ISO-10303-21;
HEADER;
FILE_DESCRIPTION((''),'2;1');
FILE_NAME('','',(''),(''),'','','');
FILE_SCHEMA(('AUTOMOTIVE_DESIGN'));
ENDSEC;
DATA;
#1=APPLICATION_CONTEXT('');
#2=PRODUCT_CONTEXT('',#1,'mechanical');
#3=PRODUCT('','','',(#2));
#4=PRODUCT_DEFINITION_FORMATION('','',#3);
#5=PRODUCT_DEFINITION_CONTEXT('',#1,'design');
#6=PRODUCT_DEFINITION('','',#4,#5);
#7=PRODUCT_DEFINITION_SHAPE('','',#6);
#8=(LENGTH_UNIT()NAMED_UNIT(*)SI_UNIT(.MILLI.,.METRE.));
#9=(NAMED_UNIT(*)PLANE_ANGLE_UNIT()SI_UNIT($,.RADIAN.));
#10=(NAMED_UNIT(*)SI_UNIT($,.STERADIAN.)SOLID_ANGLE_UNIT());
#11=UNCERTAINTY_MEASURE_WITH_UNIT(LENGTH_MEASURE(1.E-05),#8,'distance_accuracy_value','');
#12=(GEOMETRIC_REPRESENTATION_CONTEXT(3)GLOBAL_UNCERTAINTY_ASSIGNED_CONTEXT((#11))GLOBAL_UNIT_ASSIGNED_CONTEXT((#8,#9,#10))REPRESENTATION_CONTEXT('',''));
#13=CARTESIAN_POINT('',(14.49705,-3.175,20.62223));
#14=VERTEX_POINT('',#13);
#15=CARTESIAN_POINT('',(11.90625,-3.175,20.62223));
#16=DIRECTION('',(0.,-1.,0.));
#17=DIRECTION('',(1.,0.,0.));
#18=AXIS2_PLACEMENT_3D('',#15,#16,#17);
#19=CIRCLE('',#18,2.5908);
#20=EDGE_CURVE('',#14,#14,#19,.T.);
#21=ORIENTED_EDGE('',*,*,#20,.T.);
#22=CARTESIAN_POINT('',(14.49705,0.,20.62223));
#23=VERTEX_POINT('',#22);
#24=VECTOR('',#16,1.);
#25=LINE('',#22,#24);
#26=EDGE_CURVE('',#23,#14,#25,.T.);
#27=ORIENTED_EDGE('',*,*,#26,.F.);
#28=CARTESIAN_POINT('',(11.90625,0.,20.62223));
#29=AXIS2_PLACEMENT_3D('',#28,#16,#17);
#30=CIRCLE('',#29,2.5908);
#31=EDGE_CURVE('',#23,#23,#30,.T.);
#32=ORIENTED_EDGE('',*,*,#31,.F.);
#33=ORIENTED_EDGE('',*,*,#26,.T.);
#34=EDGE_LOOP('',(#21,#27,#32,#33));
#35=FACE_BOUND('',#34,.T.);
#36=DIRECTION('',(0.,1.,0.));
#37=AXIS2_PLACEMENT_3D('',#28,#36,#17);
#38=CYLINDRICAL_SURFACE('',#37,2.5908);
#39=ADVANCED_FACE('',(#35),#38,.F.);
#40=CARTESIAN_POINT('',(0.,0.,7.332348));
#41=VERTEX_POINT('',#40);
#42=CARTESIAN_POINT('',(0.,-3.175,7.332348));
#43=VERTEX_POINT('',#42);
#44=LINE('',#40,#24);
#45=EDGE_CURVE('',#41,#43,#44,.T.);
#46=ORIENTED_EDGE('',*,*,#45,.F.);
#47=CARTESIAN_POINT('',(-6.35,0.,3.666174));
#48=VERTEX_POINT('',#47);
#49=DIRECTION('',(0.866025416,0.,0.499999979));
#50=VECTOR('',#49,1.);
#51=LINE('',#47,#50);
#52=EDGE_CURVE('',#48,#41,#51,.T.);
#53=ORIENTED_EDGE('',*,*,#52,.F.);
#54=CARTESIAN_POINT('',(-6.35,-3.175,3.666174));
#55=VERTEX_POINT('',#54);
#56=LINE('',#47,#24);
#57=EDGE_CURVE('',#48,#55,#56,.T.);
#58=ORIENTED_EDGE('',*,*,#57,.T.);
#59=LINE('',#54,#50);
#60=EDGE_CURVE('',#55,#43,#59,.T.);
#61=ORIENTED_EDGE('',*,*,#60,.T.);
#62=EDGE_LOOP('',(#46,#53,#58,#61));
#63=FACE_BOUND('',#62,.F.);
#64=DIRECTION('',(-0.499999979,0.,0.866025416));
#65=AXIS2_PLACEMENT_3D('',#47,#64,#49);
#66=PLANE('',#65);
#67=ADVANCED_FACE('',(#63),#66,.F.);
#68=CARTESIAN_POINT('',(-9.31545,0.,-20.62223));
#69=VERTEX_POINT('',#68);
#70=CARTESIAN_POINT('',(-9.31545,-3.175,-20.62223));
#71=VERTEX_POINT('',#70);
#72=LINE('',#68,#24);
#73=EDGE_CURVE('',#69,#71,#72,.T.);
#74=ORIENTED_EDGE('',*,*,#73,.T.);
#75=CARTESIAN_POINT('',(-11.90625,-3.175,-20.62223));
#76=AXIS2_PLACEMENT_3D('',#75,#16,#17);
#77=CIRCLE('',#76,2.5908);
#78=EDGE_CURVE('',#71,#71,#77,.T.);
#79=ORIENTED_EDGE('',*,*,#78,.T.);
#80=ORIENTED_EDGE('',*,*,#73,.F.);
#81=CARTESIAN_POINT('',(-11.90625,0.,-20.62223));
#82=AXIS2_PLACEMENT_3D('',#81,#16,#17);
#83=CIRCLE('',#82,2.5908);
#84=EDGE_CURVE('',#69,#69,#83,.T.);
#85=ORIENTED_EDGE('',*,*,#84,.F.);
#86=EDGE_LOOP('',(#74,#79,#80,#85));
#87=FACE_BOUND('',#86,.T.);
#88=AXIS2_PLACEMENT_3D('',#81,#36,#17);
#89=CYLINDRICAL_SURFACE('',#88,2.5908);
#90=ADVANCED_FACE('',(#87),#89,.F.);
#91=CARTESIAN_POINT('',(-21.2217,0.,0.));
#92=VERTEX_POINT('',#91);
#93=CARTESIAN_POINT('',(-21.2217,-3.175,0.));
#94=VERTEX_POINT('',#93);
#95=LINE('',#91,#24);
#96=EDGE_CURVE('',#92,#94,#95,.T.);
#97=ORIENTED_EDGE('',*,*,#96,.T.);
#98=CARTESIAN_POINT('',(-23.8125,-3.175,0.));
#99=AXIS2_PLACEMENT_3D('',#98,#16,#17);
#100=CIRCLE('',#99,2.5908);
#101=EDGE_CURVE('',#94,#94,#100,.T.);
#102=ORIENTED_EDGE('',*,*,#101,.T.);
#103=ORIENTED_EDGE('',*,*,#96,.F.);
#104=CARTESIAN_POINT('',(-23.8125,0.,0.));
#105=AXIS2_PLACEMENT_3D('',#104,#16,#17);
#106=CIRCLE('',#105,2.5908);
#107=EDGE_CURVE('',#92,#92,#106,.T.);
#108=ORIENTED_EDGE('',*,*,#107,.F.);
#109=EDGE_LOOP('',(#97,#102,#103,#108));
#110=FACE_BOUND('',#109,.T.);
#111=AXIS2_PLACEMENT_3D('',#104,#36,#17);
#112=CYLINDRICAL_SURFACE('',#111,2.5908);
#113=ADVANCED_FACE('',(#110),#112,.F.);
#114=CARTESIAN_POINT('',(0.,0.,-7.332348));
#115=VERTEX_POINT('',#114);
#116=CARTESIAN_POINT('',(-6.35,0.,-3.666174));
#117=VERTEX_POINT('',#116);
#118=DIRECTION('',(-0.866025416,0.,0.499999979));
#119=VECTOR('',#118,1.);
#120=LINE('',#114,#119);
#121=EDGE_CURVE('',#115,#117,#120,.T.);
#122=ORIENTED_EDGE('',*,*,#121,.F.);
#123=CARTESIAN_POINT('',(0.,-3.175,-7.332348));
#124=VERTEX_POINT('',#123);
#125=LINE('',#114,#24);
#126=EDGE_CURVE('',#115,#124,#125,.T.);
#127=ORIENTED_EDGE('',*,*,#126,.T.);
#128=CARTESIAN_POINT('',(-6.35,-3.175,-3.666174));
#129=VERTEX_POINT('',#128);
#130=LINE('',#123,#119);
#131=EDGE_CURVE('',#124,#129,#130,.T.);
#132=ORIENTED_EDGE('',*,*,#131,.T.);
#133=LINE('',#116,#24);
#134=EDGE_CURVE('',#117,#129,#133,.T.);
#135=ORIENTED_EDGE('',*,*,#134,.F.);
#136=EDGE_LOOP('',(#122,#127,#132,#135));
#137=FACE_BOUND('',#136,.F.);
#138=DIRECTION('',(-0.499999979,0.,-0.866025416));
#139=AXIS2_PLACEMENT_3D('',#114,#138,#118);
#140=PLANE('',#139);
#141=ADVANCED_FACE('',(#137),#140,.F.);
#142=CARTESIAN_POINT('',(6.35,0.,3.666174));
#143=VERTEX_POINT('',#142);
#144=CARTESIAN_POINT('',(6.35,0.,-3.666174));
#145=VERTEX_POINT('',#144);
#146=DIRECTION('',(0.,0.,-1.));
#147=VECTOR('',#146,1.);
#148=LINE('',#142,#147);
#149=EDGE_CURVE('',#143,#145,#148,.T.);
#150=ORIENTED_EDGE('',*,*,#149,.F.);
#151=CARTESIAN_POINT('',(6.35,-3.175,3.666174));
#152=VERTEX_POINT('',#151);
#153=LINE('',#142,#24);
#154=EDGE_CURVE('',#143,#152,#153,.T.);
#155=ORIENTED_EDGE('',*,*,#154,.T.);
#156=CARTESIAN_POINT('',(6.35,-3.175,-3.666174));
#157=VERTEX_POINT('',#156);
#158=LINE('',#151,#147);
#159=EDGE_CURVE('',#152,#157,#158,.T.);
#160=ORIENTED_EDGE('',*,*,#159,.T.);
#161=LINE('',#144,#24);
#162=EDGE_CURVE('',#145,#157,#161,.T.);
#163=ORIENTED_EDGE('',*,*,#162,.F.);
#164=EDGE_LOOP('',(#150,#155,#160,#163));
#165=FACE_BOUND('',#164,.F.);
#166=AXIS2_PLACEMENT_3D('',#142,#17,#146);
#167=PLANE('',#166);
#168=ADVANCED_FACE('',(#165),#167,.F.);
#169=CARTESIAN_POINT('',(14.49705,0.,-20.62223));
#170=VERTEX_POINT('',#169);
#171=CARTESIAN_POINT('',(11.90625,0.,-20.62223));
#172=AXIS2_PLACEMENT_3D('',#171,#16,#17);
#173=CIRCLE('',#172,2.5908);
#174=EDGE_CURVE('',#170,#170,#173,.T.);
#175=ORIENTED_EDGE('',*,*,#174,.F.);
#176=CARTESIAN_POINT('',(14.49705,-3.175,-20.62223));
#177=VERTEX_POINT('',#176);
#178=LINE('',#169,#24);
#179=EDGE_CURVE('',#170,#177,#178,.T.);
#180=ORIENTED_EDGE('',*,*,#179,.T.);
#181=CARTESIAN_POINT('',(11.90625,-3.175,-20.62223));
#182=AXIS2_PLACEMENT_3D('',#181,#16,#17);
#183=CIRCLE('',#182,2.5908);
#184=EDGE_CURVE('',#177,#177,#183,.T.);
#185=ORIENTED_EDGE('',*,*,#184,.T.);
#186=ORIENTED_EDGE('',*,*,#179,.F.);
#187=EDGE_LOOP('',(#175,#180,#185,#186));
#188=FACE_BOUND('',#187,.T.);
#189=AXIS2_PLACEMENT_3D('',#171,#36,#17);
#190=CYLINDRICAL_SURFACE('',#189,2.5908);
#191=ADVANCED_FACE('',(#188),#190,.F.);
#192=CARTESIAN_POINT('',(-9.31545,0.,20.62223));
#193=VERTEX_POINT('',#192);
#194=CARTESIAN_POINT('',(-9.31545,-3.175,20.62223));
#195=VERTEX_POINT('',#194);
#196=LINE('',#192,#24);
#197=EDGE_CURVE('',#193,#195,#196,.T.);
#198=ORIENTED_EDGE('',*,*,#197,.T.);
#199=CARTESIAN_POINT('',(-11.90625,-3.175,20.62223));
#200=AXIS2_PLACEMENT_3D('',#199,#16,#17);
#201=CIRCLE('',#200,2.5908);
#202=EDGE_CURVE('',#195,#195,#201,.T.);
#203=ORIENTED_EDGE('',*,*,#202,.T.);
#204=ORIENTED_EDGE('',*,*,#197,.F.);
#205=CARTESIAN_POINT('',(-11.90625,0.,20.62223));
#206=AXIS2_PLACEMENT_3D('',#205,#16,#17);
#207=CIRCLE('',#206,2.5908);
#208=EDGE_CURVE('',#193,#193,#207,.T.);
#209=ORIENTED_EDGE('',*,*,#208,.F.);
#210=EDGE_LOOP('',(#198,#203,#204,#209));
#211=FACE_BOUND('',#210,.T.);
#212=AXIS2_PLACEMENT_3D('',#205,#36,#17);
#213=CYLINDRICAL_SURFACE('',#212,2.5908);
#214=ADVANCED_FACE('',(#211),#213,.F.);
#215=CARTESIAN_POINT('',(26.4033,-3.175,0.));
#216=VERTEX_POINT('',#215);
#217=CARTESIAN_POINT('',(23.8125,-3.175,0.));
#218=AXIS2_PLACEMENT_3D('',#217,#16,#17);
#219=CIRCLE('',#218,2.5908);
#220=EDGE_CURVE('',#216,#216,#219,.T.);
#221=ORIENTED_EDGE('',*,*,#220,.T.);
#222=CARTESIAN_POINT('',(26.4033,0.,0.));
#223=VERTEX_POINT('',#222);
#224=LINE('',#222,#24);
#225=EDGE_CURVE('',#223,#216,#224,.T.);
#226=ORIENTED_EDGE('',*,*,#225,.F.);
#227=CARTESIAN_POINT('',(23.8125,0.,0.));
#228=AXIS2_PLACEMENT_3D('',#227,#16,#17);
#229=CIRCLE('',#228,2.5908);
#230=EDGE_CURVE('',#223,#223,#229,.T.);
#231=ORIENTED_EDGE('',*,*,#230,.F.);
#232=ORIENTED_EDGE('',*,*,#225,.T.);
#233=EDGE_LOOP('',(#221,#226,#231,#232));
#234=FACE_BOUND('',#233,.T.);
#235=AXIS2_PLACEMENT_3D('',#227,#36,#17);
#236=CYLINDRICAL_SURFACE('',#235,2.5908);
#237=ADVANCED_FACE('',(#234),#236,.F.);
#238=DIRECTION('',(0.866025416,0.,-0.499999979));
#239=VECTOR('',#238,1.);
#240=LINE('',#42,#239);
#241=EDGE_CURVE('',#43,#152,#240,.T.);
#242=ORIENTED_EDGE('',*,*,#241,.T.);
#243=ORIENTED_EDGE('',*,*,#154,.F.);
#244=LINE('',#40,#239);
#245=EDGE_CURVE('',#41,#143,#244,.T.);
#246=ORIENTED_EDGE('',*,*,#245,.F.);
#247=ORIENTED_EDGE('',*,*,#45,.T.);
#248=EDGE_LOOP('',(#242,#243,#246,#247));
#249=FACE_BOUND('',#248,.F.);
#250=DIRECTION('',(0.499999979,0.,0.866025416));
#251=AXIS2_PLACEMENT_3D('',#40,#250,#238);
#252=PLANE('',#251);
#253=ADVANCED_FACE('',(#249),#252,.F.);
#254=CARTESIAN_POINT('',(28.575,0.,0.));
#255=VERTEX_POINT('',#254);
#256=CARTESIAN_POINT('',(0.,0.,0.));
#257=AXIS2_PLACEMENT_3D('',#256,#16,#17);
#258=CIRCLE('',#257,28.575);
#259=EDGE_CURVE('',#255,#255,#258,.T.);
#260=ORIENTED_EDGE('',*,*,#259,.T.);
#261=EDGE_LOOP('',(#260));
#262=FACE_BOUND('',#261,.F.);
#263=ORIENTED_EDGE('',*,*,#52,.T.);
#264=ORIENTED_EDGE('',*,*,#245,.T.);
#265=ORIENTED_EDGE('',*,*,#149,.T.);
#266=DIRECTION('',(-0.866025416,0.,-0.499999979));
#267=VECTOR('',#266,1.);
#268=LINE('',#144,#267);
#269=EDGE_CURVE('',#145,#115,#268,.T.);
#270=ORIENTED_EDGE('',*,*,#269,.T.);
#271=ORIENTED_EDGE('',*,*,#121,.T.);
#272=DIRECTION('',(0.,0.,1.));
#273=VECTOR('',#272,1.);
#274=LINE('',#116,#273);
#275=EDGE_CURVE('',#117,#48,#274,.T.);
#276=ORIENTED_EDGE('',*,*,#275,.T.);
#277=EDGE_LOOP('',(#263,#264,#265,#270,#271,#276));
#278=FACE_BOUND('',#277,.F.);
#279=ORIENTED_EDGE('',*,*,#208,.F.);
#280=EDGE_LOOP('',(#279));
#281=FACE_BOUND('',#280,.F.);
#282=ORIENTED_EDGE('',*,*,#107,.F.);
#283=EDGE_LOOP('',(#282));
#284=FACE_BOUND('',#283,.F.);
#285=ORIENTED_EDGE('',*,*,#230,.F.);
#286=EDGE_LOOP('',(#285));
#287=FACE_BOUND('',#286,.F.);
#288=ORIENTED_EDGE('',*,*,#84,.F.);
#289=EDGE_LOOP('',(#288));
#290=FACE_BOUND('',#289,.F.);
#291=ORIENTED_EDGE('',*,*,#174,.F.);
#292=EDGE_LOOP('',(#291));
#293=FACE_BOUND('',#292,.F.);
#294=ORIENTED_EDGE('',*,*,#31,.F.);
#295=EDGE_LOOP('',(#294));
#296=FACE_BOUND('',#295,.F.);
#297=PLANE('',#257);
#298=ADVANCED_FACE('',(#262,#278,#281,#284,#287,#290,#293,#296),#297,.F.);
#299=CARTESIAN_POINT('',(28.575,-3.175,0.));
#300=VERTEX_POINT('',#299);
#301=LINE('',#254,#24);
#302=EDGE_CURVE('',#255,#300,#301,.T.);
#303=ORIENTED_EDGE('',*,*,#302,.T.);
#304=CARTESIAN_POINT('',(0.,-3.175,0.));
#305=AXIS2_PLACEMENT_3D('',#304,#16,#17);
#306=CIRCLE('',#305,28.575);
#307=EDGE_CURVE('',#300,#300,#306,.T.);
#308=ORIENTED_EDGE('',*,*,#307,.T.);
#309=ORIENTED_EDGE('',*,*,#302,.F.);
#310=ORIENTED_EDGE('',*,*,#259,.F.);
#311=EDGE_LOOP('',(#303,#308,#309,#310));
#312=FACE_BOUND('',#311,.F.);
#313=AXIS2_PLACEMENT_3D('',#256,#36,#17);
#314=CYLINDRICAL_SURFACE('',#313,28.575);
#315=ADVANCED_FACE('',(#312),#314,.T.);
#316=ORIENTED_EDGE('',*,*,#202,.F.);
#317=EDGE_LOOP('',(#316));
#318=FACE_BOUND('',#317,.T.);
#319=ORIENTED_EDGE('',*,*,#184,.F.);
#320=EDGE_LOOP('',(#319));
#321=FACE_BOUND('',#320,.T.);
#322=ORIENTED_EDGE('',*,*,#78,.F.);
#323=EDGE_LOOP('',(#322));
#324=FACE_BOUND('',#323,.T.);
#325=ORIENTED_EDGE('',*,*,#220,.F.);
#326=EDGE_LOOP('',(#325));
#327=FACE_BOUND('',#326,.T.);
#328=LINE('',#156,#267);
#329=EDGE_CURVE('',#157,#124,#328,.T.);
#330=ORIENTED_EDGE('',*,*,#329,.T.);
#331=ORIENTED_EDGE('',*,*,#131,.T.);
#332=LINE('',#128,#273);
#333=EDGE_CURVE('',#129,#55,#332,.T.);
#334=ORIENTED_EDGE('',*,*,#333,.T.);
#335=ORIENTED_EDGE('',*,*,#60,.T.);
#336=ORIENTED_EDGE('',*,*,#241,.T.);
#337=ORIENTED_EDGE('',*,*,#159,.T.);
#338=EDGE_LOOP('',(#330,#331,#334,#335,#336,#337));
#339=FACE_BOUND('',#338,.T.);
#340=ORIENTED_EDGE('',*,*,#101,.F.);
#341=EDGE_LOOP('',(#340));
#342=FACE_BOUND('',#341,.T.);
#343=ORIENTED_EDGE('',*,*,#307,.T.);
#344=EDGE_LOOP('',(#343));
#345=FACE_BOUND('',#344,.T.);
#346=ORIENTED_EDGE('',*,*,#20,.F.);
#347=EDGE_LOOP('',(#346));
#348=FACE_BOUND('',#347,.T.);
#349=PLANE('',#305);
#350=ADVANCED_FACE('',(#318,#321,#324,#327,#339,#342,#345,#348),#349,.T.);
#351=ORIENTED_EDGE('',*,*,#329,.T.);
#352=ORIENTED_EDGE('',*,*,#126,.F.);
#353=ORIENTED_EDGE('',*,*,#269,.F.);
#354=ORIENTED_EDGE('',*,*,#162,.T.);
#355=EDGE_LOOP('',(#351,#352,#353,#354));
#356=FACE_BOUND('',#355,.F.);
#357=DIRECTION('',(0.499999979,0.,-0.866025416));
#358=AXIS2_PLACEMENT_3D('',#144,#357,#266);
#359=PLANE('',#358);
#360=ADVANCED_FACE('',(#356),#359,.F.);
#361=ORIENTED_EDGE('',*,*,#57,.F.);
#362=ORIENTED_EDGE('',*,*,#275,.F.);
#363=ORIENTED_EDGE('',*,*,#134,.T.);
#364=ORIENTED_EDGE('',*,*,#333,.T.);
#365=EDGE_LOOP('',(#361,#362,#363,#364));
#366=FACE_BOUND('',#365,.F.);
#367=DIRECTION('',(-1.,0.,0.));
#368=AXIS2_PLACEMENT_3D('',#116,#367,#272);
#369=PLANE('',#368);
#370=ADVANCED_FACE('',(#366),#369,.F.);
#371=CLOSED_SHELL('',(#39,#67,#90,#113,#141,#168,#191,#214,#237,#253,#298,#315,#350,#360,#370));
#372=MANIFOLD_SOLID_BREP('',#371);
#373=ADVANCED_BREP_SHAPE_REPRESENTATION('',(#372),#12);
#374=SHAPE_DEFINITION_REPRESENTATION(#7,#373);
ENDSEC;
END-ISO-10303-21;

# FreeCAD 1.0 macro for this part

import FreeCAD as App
import Part
import Sketcher
Q = App.Units.Quantity

doc = App.newDocument("Part")
body = doc.addObject("PartDesign::Body", "Body")

# Sketch on XZ plane
sketch1 = body.newObject("Sketcher::SketchObject", "Sketch")
sketch1.AttachmentSupport = (doc.getObject("XZ_Plane"), [""])
sketch1.MapMode = "FlatFace"
sketch1.addGeometry(Part.Circle(App.Vector(0, 0, 0), App.Vector(0, 0, 1), 28.575), False)
sketch1.addGeometry(Part.Circle(App.Vector(-11.90625, -20.62223, 0), App.Vector(0, 0, 1), 2.5908), False)
sketch1.addGeometry(Part.Circle(App.Vector(11.90625, -20.62223, 0), App.Vector(0, 0, 1), 2.5908), False)
sketch1.addGeometry(Part.Circle(App.Vector(-23.8125, 0, 0), App.Vector(0, 0, 1), 2.5908), False)
sketch1.addGeometry(Part.Circle(App.Vector(-11.90625, 20.62223, 0), App.Vector(0, 0, 1), 2.5908), False)
sketch1.addGeometry(Part.LineSegment(App.Vector(-6.35, -3.666174, 0), App.Vector(-6.35, 3.666174, 0)), False)
sketch1.addGeometry(Part.LineSegment(App.Vector(-6.35, 3.666174, 0), App.Vector(0, 7.332348, 0)), False)
sketch1.addGeometry(Part.LineSegment(App.Vector(0, 7.332348, 0), App.Vector(6.35, 3.666174, 0)), False)
sketch1.addGeometry(Part.LineSegment(App.Vector(6.35, 3.666174, 0), App.Vector(6.35, -3.666174, 0)), False)
sketch1.addGeometry(Part.LineSegment(App.Vector(6.35, -3.666174, 0), App.Vector(0, -7.332348, 0)), False)
sketch1.addGeometry(Part.LineSegment(App.Vector(0, -7.332348, 0), App.Vector(-6.35, -3.666174, 0)), False)
sketch1.addGeometry(Part.Circle(App.Vector(23.8125, 0, 0), App.Vector(0, 0, 1), 2.5908), False)
sketch1.addGeometry(Part.Circle(App.Vector(11.90625, 20.62223, 0), App.Vector(0, 0, 1), 2.5908), False)
sketch1.addConstraint(Sketcher.Constraint("Coincident", 5, 2, 6, 1))
sketch1.addConstraint(Sketcher.Constraint("Coincident", 6, 2, 7, 1))
sketch1.addConstraint(Sketcher.Constraint("Coincident", 7, 2, 8, 1))
sketch1.addConstraint(Sketcher.Constraint("Coincident", 8, 2, 9, 1))
sketch1.addConstraint(Sketcher.Constraint("Coincident", 9, 2, 10, 1))
sketch1.addConstraint(Sketcher.Constraint("Coincident", 10, 2, 5, 1))
sketch1.addConstraint(Sketcher.Constraint("Vertical", 5))
sketch1.addConstraint(Sketcher.Constraint("Vertical", 8))
sketch1.addConstraint(Sketcher.Constraint("Coincident", 0, 3, -1, 1))
sketch1.addConstraint(Sketcher.Constraint("Equal", 1, 2))
sketch1.addConstraint(Sketcher.Constraint("Equal", 2, 3))
sketch1.addConstraint(Sketcher.Constraint("Equal", 3, 4))
sketch1.addConstraint(Sketcher.Constraint("Equal", 4, 11))
sketch1.addConstraint(Sketcher.Constraint("Equal", 11, 12))
sketch1.addConstraint(Sketcher.Constraint("Symmetric", 2, 3, 4, 3, -1, 1))
sketch1.addConstraint(Sketcher.Constraint("Symmetric", 3, 3, 11, 3, -1, 1))
sketch1.addConstraint(Sketcher.Constraint("Symmetric", 1, 3, 12, 3, -1, 1))
sketch1.addConstraint(Sketcher.Constraint("Symmetric", 5, 2, 8, 2, -1, 1))
sketch1.addConstraint(Sketcher.Constraint("Symmetric", 6, 2, 9, 2, -1, 1))
sketch1.addConstraint(Sketcher.Constraint("Symmetric", 1, 3, 2, 3, -2))
sketch1.addConstraint(Sketcher.Constraint("PointOnObject", 3, 3, -1))
sketch1.addConstraint(Sketcher.Constraint("PointOnObject", 6, 2, -2))
sketch1.addConstraint(Sketcher.Constraint("Parallel", 7, 10))
sketch1.addConstraint(Sketcher.Constraint("Horizontal", 5, 2, 7, 2))
sketch1.addConstraint(Sketcher.Constraint("Diameter", 0, Q("2.25 in")))
sketch1.addConstraint(Sketcher.Constraint("Diameter", 1, Q("0.204 in")))
sketch1.addConstraint(Sketcher.Constraint("Angle", 6, Q("29.999999 deg")))
sketch1.addConstraint(Sketcher.Constraint("DistanceX", 5, 2, 7, 2, Q("0.5 in")))
sketch1.addConstraint(Sketcher.Constraint("DistanceX", 1, 3, -1, 1, Q("0.46875 in")))
sketch1.addConstraint(Sketcher.Constraint("DistanceX", 3, 3, -1, 1, Q("0.9375 in")))
sketch1.addConstraint(Sketcher.Constraint("DistanceY", 5, 1, 5, 2, 7.332348))
sketch1.addConstraint(Sketcher.Constraint("DistanceY", 1, 3, -1, 1, 20.62223))
pad1 = body.newObject("PartDesign::Pad", "Pad")
pad1.Profile = sketch1
pad1.Length = Q("0.125 in")

doc.recompute()
